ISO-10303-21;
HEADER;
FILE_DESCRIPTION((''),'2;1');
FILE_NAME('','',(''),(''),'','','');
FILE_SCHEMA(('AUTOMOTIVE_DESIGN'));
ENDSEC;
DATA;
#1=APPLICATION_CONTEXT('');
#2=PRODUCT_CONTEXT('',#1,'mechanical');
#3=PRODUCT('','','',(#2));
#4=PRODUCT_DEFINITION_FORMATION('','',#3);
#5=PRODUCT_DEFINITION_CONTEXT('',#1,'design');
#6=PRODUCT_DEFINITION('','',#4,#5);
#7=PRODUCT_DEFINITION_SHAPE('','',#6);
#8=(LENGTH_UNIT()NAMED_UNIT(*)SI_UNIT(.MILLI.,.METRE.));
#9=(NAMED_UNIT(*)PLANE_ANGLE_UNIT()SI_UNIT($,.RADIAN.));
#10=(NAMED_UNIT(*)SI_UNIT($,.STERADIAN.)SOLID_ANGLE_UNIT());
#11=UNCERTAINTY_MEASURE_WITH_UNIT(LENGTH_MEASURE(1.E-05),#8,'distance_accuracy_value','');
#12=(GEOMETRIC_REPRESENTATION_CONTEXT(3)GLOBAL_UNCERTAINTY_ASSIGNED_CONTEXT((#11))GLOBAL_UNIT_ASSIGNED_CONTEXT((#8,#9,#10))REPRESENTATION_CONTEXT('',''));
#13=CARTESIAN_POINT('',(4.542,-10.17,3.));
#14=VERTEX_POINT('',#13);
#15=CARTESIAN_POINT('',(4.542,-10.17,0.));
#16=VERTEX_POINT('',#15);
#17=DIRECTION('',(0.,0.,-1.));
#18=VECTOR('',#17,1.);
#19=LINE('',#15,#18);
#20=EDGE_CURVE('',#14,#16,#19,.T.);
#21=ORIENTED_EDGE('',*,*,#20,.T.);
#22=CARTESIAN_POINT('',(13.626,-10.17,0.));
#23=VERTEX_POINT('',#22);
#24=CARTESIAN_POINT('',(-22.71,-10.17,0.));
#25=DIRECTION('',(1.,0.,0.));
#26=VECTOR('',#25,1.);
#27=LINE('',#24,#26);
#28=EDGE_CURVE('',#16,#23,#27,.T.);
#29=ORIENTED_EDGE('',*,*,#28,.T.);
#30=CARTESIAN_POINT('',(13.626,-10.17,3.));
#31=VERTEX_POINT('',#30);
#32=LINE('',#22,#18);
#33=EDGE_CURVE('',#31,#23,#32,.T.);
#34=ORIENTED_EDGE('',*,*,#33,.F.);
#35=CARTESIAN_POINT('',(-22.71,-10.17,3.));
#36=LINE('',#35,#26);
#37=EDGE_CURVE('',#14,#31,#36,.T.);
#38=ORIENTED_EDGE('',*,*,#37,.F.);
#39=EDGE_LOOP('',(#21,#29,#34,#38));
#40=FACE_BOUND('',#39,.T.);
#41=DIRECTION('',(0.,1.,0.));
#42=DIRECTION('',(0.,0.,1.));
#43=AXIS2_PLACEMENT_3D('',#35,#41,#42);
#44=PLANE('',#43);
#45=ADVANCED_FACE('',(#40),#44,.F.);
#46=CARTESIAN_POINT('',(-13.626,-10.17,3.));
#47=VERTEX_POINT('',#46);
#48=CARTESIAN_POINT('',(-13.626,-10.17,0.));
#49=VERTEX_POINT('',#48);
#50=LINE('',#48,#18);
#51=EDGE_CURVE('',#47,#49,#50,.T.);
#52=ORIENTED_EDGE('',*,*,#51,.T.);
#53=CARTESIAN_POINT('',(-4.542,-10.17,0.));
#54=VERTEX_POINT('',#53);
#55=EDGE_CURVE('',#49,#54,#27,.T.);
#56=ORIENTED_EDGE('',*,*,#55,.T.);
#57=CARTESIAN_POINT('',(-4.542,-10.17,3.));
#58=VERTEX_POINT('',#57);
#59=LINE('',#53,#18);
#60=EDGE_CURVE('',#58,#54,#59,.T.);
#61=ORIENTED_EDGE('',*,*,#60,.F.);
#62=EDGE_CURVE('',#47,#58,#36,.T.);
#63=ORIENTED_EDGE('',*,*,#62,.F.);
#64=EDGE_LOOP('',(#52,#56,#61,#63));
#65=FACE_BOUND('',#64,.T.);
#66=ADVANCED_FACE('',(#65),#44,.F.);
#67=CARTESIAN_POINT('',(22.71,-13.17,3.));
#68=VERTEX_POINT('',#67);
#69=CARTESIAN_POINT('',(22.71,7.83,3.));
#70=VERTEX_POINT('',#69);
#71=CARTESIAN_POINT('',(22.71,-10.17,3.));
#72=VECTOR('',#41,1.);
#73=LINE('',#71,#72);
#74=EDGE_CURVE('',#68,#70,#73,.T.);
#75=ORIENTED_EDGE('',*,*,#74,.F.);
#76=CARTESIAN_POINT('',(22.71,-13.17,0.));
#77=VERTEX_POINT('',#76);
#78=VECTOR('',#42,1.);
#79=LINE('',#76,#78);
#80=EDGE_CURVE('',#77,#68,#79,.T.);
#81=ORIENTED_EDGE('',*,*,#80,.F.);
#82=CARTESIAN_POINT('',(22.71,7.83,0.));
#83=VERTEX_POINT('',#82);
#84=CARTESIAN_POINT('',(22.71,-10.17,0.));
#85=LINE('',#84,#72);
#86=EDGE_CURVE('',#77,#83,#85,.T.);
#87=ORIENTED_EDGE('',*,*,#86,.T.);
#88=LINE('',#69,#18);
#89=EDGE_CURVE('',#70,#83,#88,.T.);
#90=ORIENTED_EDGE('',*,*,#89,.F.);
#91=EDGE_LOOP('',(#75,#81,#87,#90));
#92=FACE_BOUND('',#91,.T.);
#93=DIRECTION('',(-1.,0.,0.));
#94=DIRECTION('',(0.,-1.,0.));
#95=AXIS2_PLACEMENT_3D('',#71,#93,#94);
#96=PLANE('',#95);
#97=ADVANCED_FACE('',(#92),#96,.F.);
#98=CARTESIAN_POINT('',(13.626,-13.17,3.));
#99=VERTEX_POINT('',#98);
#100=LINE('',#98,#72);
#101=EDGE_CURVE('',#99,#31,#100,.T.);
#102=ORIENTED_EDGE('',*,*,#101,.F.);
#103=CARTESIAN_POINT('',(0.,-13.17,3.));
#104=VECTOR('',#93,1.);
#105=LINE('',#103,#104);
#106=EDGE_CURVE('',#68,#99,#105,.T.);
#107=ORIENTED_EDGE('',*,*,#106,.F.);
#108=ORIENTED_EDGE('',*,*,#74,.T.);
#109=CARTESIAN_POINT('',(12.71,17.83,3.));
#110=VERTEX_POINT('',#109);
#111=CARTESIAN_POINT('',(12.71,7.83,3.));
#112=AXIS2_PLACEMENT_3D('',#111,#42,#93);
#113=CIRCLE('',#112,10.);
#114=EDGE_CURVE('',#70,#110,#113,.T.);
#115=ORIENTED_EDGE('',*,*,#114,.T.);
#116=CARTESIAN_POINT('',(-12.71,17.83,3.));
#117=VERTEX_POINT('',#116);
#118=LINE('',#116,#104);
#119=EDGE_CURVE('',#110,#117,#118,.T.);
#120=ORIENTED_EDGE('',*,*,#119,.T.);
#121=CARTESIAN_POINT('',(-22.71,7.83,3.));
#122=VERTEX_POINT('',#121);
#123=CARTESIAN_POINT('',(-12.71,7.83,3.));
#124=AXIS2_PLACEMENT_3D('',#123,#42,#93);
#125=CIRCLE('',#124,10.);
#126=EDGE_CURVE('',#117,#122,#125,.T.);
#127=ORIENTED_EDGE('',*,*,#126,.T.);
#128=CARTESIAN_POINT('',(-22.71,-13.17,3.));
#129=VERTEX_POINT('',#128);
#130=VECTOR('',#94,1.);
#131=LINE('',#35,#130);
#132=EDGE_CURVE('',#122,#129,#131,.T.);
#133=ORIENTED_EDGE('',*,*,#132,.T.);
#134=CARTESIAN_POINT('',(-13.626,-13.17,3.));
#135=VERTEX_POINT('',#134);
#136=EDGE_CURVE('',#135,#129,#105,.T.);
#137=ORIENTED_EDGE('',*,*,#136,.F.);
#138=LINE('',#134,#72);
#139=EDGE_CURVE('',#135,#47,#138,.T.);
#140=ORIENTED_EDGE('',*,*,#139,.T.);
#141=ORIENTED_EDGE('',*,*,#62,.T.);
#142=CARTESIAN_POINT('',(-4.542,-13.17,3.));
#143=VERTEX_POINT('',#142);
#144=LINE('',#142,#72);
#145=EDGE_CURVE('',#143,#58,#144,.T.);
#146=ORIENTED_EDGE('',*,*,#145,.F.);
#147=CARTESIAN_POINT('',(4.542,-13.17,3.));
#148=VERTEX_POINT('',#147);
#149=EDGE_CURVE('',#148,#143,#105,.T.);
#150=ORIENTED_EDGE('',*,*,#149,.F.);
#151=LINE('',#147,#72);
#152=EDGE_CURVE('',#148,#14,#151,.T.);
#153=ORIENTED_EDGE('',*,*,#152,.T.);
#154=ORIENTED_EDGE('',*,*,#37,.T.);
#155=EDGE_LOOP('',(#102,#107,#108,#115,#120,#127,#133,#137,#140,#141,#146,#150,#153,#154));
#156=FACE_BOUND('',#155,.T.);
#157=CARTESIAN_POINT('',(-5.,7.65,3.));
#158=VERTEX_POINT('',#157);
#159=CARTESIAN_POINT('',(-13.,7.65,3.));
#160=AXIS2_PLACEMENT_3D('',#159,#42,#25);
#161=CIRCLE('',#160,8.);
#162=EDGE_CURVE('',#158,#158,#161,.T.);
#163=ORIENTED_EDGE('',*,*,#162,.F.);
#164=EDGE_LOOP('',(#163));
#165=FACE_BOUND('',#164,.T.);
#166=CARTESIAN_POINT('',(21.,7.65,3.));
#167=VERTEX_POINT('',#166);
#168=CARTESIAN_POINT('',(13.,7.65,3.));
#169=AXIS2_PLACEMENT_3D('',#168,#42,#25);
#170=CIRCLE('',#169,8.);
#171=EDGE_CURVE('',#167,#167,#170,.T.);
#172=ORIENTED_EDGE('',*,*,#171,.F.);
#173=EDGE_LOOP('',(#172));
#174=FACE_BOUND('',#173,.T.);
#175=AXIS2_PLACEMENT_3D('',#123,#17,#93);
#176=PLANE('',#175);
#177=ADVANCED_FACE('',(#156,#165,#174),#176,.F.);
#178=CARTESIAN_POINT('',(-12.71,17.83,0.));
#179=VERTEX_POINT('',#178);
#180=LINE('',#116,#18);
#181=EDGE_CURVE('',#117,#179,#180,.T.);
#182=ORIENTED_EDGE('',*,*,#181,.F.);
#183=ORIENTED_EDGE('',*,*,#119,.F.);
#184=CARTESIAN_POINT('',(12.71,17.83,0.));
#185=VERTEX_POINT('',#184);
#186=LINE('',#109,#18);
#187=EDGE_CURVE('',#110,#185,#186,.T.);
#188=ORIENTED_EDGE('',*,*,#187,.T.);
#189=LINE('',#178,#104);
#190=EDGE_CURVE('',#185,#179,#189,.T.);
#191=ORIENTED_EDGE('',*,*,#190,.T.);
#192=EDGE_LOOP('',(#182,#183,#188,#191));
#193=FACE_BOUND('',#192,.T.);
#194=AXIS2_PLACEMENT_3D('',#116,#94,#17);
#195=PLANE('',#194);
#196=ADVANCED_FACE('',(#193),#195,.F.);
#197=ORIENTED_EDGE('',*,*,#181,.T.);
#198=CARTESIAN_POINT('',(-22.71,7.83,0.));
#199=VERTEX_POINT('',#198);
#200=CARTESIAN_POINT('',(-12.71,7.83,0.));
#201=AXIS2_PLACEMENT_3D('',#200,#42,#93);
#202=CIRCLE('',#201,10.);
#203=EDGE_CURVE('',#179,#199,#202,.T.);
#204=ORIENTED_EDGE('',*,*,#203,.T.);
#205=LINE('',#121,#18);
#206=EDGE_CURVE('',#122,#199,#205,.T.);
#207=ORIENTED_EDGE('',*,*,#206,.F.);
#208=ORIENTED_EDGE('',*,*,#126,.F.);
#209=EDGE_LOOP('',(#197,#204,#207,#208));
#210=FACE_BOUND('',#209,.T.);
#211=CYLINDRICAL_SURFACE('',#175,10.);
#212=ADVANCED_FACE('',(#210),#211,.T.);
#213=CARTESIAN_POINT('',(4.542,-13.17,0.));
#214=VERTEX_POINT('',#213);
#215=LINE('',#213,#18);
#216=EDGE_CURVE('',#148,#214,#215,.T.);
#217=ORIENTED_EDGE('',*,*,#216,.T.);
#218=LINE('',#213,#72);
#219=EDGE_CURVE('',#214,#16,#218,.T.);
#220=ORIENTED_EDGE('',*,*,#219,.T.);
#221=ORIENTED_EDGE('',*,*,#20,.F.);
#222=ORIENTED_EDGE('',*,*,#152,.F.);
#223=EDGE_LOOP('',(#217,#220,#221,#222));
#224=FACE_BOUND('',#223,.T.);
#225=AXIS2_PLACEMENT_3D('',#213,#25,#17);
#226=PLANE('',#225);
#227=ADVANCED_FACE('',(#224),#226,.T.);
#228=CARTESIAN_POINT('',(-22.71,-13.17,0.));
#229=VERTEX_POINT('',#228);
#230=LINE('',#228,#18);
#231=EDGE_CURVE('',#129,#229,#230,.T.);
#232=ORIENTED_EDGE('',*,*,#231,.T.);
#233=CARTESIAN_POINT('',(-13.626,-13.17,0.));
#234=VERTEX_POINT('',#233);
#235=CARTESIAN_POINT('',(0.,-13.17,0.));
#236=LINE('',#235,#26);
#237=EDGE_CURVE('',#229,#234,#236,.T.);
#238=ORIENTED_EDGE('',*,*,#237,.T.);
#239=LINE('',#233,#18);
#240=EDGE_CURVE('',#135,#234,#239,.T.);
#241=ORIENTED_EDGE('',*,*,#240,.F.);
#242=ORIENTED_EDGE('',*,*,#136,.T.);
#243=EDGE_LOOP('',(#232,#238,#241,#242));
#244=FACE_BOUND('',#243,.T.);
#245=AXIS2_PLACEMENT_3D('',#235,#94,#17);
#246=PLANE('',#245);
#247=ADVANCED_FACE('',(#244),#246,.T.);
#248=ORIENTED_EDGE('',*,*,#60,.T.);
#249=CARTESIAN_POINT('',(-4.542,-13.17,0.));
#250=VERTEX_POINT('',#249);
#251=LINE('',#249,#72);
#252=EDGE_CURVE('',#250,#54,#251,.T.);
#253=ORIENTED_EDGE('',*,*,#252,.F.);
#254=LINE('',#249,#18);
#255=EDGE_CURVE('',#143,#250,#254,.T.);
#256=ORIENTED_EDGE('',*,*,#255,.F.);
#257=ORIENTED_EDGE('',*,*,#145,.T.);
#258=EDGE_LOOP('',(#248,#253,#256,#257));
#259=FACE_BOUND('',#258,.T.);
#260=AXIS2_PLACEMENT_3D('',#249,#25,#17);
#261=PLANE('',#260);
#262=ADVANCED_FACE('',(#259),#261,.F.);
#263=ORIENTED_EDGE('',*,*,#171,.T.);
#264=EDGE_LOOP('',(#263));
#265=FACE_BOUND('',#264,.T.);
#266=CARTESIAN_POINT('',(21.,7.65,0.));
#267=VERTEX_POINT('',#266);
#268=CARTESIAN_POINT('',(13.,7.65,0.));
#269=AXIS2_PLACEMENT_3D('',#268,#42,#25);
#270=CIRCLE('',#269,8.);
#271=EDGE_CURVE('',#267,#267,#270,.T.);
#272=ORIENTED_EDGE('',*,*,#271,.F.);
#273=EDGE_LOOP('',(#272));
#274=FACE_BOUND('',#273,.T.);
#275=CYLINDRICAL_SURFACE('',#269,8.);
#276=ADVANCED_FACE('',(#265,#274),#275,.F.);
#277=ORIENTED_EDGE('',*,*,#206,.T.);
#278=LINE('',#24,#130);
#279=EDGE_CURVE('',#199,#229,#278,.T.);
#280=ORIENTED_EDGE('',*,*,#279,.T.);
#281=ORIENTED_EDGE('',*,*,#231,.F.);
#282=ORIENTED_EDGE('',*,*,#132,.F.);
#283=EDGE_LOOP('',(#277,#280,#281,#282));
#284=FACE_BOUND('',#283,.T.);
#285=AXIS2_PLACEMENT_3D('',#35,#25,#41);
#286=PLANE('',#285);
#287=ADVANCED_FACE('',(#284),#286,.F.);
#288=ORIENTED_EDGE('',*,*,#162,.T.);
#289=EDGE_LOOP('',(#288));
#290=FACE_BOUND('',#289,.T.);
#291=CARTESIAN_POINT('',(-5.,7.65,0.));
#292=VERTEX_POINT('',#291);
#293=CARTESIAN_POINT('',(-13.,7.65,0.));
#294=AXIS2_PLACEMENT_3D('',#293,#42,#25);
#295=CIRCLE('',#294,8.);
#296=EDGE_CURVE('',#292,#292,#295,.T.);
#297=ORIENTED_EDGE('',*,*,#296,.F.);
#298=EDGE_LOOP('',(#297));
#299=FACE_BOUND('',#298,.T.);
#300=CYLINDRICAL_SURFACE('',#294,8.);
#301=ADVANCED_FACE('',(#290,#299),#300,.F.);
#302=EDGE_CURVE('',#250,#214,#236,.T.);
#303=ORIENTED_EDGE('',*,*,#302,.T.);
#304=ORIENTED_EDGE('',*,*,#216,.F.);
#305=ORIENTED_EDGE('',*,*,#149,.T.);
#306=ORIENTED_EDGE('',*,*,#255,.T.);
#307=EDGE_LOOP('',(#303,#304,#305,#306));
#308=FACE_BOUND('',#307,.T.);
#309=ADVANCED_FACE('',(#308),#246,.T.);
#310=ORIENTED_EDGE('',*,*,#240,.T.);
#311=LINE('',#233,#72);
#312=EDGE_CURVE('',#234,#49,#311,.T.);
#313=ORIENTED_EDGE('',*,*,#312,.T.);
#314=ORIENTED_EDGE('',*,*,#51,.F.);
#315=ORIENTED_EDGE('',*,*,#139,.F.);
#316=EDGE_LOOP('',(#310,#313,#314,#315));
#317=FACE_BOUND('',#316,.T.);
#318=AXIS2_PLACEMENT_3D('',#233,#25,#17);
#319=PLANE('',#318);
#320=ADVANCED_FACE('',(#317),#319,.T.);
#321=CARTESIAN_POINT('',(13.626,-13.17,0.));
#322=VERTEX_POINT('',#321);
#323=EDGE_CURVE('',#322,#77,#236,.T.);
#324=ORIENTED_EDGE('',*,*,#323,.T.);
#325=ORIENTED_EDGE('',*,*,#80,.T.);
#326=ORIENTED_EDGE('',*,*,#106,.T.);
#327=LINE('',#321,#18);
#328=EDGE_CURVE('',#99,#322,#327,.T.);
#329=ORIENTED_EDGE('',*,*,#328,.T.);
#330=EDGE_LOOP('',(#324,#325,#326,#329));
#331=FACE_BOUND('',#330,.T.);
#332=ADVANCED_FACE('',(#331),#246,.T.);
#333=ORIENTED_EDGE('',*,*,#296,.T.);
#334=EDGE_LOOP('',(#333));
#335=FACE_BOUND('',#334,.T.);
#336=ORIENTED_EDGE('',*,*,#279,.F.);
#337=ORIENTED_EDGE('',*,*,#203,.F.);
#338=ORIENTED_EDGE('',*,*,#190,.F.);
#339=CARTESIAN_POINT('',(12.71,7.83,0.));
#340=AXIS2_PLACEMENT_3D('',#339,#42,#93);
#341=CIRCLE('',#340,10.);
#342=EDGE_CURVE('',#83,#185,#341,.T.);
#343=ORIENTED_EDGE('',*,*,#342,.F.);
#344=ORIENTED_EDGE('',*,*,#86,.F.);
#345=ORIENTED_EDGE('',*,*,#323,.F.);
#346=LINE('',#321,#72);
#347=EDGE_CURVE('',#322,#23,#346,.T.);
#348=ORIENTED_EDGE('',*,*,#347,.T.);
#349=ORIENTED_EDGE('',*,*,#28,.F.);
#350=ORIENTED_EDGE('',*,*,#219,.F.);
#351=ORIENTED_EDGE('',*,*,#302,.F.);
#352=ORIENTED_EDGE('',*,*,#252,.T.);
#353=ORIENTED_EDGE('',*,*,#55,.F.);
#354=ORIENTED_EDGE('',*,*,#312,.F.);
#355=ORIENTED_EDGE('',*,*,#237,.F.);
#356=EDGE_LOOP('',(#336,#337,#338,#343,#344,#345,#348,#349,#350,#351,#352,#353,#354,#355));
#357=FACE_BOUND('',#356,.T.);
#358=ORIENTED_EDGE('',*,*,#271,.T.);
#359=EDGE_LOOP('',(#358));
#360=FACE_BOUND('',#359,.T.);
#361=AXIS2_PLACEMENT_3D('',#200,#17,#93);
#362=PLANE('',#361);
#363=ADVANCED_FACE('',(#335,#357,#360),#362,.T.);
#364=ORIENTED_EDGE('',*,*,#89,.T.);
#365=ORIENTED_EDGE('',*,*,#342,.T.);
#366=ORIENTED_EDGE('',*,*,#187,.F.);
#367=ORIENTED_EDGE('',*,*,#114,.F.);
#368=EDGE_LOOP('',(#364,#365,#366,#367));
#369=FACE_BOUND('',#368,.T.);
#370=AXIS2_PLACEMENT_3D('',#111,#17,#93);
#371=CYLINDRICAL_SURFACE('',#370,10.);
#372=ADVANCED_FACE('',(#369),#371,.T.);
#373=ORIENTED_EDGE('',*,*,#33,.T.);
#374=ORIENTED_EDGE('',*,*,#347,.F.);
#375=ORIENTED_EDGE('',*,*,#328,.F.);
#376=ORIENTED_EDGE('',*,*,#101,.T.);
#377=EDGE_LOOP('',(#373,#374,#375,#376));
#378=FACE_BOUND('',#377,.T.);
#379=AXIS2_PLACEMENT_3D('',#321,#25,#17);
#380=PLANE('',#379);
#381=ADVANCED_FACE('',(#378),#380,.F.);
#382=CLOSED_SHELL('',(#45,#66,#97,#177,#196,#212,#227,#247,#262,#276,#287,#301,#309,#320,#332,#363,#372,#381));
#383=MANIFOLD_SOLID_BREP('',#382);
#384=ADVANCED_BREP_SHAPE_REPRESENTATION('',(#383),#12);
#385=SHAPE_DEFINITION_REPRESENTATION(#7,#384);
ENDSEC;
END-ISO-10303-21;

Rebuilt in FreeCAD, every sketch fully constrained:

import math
import FreeCAD as App
import Part
import Sketcher
Q = App.Units.Quantity


def add_polygon(sketch, points):
    """Adds a closed chain of lines whose ends are joined by coincident constraints."""
    first, n = sketch.GeometryCount, len(points)
    for a, b in zip(points, points[1:] + points[:1]):
        sketch.addGeometry(Part.LineSegment(App.Vector(*a, 0), App.Vector(*b, 0)), False)
    for i in range(n):
        sketch.addConstraint(Sketcher.Constraint("Coincident", first + i, 2, first + (i + 1) % n, 1))

doc = App.newDocument("Part")
body = doc.addObject("PartDesign::Body", "Body")

sketch1 = doc.addObject("Sketcher::SketchObject", "Sketch")
body.addObject(sketch1)
sketch1.AttachmentSupport = (doc.XY_Plane, [""])
sketch1.MapMode = "FlatFace"
sketch1.addGeometry(Part.LineSegment(App.Vector(-23, -10, 0), App.Vector(23, -10, 0)), False)
sketch1.addGeometry(Part.LineSegment(App.Vector(23, -10, 0), App.Vector(23, 8, 0)), False)
sketch1.addGeometry(Part.ArcOfCircle(Part.Circle(App.Vector(13, 8, 0), App.Vector(0, 0, 1), 10), math.radians(0), math.radians(90)), False)
sketch1.addGeometry(Part.LineSegment(App.Vector(13, 18, 0), App.Vector(-13, 18, 0)), False)
sketch1.addGeometry(Part.ArcOfCircle(Part.Circle(App.Vector(-13, 8, 0), App.Vector(0, 0, 1), 10), math.radians(90), math.radians(180)), False)
sketch1.addGeometry(Part.LineSegment(App.Vector(-23, 8, 0), App.Vector(-23, -10, 0)), False)
sketch1.addConstraint(Sketcher.Constraint("Coincident", 0, 2, 1, 1))
sketch1.addConstraint(Sketcher.Constraint("Tangent", 1, 2, 2, 1))
sketch1.addConstraint(Sketcher.Constraint("Tangent", 2, 2, 3, 1))
sketch1.addConstraint(Sketcher.Constraint("Tangent", 3, 2, 4, 1))
sketch1.addConstraint(Sketcher.Constraint("Tangent", 4, 2, 5, 1))
sketch1.addConstraint(Sketcher.Constraint("Coincident", 5, 2, 0, 1))
sketch1.addConstraint(Sketcher.Constraint("Horizontal", 0))
sketch1.addConstraint(Sketcher.Constraint("Vertical", 1))
sketch1.addConstraint(Sketcher.Constraint("Horizontal", 3))
sketch1.addConstraint(Sketcher.Constraint("Vertical", 5))
sketch1.addConstraint(Sketcher.Constraint("Equal", 2, 4))
sketch1.addConstraint(Sketcher.Constraint("Radius", 2, Q("10 mm")))
sketch1.addConstraint(Sketcher.Constraint("DistanceY", 1, 1, 1, 2, Q("18 mm")))
sketch1.addConstraint(Sketcher.Constraint("DistanceX", 0, 1, 0, 2, Q("45.42 mm")))
sketch1.addConstraint(Sketcher.Constraint("DistanceX", -1, 1, 2, 3, Q("12.71 mm")))
sketch1.addConstraint(Sketcher.Constraint("DistanceY", -1, 1, 2, 3, Q("7.83 mm")))
pad1 = doc.addObject("PartDesign::Pad", "Pad")
body.addObject(pad1)
pad1.Profile = sketch1
pad1.Length = 3

sketch2 = doc.addObject("Sketcher::SketchObject", "Sketch001")
body.addObject(sketch2)
sketch2.AttachmentSupport = (doc.XY_Plane, [""])
sketch2.MapMode = "FlatFace"
sketch2.AttachmentOffset = App.Placement(App.Vector(0, 0, 3), App.Rotation())
sketch2.addGeometry(Part.Circle(App.Vector(-13, 8, 0), App.Vector(0, 0, 1), 8), False)
sketch2.addGeometry(Part.Circle(App.Vector(13, 8, 0), App.Vector(0, 0, 1), 8), False)
sketch2.addConstraint(Sketcher.Constraint("Equal", 0, 1))
sketch2.addConstraint(Sketcher.Constraint("Symmetric", 0, 3, 1, 3, -2))
sketch2.addConstraint(Sketcher.Constraint("Diameter", 0, Q("16 mm")))
sketch2.addConstraint(Sketcher.Constraint("DistanceX", 0, 3, -1, 1, Q("13 mm")))
sketch2.addConstraint(Sketcher.Constraint("DistanceY", -1, 1, 0, 3, Q("7.65 mm")))
pocket1 = doc.addObject("PartDesign::Pocket", "Pocket")
body.addObject(pocket1)
pocket1.Profile = sketch2
pocket1.Length = 3

sketch3 = doc.addObject("Sketcher::SketchObject", "Sketch002")
body.addObject(sketch3)
sketch3.AttachmentSupport = (doc.XZ_Plane, [""])
sketch3.MapMode = "FlatFace"
sketch3.AttachmentOffset = App.Placement(App.Vector(0, 0, 10.17), App.Rotation())
add_polygon(sketch3, [(-22.7, 3), (-22.7, 0), (-13.6, 0), (-13.6, 3)])
add_polygon(sketch3, [(-4.5, 3), (-4.5, 0), (4.5, 0), (4.5, 3)])
add_polygon(sketch3, [(13.6, 3), (13.6, 0), (22.7, 0), (22.7, 3)])
sketch3.addConstraint(Sketcher.Constraint("Vertical", 0))
sketch3.addConstraint(Sketcher.Constraint("Horizontal", 1))
sketch3.addConstraint(Sketcher.Constraint("Vertical", 2))
sketch3.addConstraint(Sketcher.Constraint("Horizontal", 3))
sketch3.addConstraint(Sketcher.Constraint("Vertical", 4))
sketch3.addConstraint(Sketcher.Constraint("Horizontal", 5))
sketch3.addConstraint(Sketcher.Constraint("Vertical", 6))
sketch3.addConstraint(Sketcher.Constraint("Horizontal", 7))
sketch3.addConstraint(Sketcher.Constraint("Vertical", 8))
sketch3.addConstraint(Sketcher.Constraint("Horizontal", 9))
sketch3.addConstraint(Sketcher.Constraint("Vertical", 10))
sketch3.addConstraint(Sketcher.Constraint("Horizontal", 11))
sketch3.addConstraint(Sketcher.Constraint("Symmetric", 4, 2, 5, 2, -1, 1))
sketch3.addConstraint(Sketcher.Constraint("Symmetric", 1, 2, 8, 2, -1, 1))
sketch3.addConstraint(Sketcher.Constraint("Symmetric", 0, 2, 9, 2, -2))
sketch3.addConstraint(Sketcher.Constraint("Horizontal", 3, 2, 6, 2))
sketch3.addConstraint(Sketcher.Constraint("Horizontal", 7, 2, 10, 2))
sketch3.addConstraint(Sketcher.Constraint("Equal", 3, 5))
sketch3.addConstraint(Sketcher.Constraint("DistanceY", 0, 2, 0, 1, Q("3 mm")))
sketch3.addConstraint(Sketcher.Constraint("DistanceX", 1, 1, 1, 2, Q("9.084 mm")))
sketch3.addConstraint(Sketcher.Constraint("DistanceX", 0, 2, -1, 1, Q("22.71 mm")))
pad2 = doc.addObject("PartDesign::Pad", "Pad001")
body.addObject(pad2)
pad2.Profile = sketch3
pad2.Length = 3

doc.recompute()
